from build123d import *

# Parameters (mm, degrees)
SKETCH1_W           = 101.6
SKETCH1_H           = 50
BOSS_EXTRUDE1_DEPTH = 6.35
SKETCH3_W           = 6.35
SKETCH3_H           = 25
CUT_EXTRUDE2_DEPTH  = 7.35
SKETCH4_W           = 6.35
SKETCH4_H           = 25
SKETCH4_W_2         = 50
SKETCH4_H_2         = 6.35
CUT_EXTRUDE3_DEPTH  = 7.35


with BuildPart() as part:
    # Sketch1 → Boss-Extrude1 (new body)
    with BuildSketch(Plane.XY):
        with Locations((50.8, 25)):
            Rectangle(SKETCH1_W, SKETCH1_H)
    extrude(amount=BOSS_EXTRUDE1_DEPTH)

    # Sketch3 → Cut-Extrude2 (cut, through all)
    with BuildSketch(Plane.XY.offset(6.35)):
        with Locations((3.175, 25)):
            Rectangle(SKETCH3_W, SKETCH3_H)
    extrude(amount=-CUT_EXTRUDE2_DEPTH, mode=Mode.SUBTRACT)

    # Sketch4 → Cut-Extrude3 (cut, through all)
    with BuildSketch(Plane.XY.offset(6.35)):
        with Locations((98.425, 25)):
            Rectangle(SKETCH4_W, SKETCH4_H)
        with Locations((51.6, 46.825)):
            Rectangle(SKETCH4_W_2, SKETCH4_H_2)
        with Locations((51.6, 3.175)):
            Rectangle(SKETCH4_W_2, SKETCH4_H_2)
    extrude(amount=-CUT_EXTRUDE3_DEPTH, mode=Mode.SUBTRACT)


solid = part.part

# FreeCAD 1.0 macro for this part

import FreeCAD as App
import Part
import Sketcher

V = App.Vector


def add_polygon(sketch, points):
    """Adds a closed chain of lines whose ends are joined by coincident constraints."""
    first, n = sketch.GeometryCount, len(points)
    for a, b in zip(points, points[1:] + points[:1]):
        sketch.addGeometry(Part.LineSegment(App.Vector(*a, 0), App.Vector(*b, 0)), False)
    for i in range(n):
        sketch.addConstraint(Sketcher.Constraint("Coincident", first + i, 2, first + (i + 1) % n, 1))

doc = App.newDocument("Part")
params = doc.addObject("Spreadsheet::Sheet", "Params")
for row, (alias, value) in enumerate([
    ("sketch1_height", "50 mm"),
    ("sketch1_width", "101.6 mm"),
    ("pad1_length", "6.35 mm"),
    ("sketch2_height", "25 mm"),
    ("sketch2_width", "6.35 mm"),
    ("sketch3_width", "50 mm"),
    ("sketch3_height", "25 mm"),
    ("sketch3_width2", "6.35 mm"),
], start=1):
    params.set(f"A{row}", alias)
    params.set(f"B{row}", "=" + value)
    params.setAlias(f"B{row}", alias)

body = doc.addObject("PartDesign::Body", "Body")

# Sketch on XY plane
sketch1 = body.newObject("Sketcher::SketchObject", "Sketch")
sketch1.AttachmentSupport = (doc.getObject("XY_Plane"), [""])
sketch1.MapMode = "FlatFace"
add_polygon(sketch1, [(0, 50), (0, 0), (102, 0), (102, 50)])  # lines 0-3
sketch1.addConstraint([
    Sketcher.Constraint("Vertical", 0),
    Sketcher.Constraint("Horizontal", 1),
    Sketcher.Constraint("Vertical", 2),
    Sketcher.Constraint("Horizontal", 3),
    Sketcher.Constraint("Coincident", 0, 2, -1, 1),
    Sketcher.Constraint("DistanceY", 0, 2, 0, 1, 50.0),
    Sketcher.Constraint("DistanceX", 1, 1, 1, 2, 101.6),
])
sketch1.setExpression("Constraints[9]", "Params.sketch1_height")
sketch1.setExpression("Constraints[10]", "Params.sketch1_width")
pad1 = body.newObject("PartDesign::Pad", "Pad")
pad1.Profile = sketch1
pad1.setExpression("Length", "Params.pad1_length")

# Sketch on XY plane
sketch2 = body.newObject("Sketcher::SketchObject", "Sketch001")
sketch2.AttachmentSupport = (doc.getObject("XY_Plane"), [""])
sketch2.MapMode = "FlatFace"
sketch2.AttachmentOffset = App.Placement(V(0, 0, 6.35), App.Rotation())
add_polygon(sketch2, [(0, 38), (0, 12), (6, 12), (6, 38)])  # lines 0-3
sketch2.addConstraint([
    Sketcher.Constraint("Vertical", 0),
    Sketcher.Constraint("Horizontal", 1),
    Sketcher.Constraint("Vertical", 2),
    Sketcher.Constraint("Horizontal", 3),
    Sketcher.Constraint("PointOnObject", 0, 2, -2),
    Sketcher.Constraint("DistanceY", 0, 2, 0, 1, 25.0),
    Sketcher.Constraint("DistanceX", 1, 1, 1, 2, 6.35),
    Sketcher.Constraint("DistanceY", -1, 1, 0, 2, 12.5),
])
sketch2.setExpression("Constraints[9]", "Params.sketch2_height")
sketch2.setExpression("Constraints[10]", "Params.sketch2_width")
pocket1 = body.newObject("PartDesign::Pocket", "Pocket")
pocket1.Profile = sketch2
pocket1.Type = "ThroughAll"

# Sketch on XY plane
sketch3 = body.newObject("Sketcher::SketchObject", "Sketch002")
sketch3.AttachmentSupport = (doc.getObject("XY_Plane"), [""])
sketch3.MapMode = "FlatFace"
sketch3.AttachmentOffset = App.Placement(V(0, 0, 6.35), App.Rotation())
add_polygon(sketch3, [(95, 38), (95, 12), (102, 12), (102, 38)])  # lines 0-3
add_polygon(sketch3, [(27, 50), (27, 44), (77, 44), (77, 50)])  # lines 4-7
add_polygon(sketch3, [(27, 6), (27, 0), (77, 0), (77, 6)])  # lines 8-11
sketch3.addConstraint([
    Sketcher.Constraint("Vertical", 0),
    Sketcher.Constraint("Horizontal", 1),
    Sketcher.Constraint("Vertical", 2),
    Sketcher.Constraint("Horizontal", 3),
    Sketcher.Constraint("Vertical", 4),
    Sketcher.Constraint("Horizontal", 5),
    Sketcher.Constraint("Vertical", 6),
    Sketcher.Constraint("Horizontal", 7),
    Sketcher.Constraint("Vertical", 8),
    Sketcher.Constraint("Horizontal", 9),
    Sketcher.Constraint("Vertical", 10),
    Sketcher.Constraint("Horizontal", 11),
    Sketcher.Constraint("PointOnObject", 8, 2, -1),
    Sketcher.Constraint("Vertical", 7, 2, 8, 2),
    Sketcher.Constraint("Vertical", 6, 2, 9, 2),
    Sketcher.Constraint("Equal", 3, 4),
    Sketcher.Constraint("Equal", 6, 8),
    Sketcher.Constraint("DistanceX", 5, 1, 5, 2, 50.0),
    Sketcher.Constraint("DistanceY", 0, 2, 0, 1, 25.0),
    Sketcher.Constraint("DistanceY", -1, 1, 6, 2, 50.0),
    Sketcher.Constraint("DistanceX", 4, 2, 2, 2, 75.0),
    Sketcher.Constraint("DistanceX", 1, 1, 1, 2, 6.35),
    Sketcher.Constraint("DistanceY", -1, 1, 0, 2, 12.5),
    Sketcher.Constraint("DistanceX", -1, 1, 1, 2, 101.6),
])
sketch3.setExpression("Constraints[29]", "Params.sketch3_width")
sketch3.setExpression("Constraints[30]", "Params.sketch3_height")
sketch3.setExpression("Constraints[33]", "Params.sketch3_width2")
pocket2 = body.newObject("PartDesign::Pocket", "Pocket001")
pocket2.Profile = sketch3
pocket2.Type = "ThroughAll"

doc.recompute()
